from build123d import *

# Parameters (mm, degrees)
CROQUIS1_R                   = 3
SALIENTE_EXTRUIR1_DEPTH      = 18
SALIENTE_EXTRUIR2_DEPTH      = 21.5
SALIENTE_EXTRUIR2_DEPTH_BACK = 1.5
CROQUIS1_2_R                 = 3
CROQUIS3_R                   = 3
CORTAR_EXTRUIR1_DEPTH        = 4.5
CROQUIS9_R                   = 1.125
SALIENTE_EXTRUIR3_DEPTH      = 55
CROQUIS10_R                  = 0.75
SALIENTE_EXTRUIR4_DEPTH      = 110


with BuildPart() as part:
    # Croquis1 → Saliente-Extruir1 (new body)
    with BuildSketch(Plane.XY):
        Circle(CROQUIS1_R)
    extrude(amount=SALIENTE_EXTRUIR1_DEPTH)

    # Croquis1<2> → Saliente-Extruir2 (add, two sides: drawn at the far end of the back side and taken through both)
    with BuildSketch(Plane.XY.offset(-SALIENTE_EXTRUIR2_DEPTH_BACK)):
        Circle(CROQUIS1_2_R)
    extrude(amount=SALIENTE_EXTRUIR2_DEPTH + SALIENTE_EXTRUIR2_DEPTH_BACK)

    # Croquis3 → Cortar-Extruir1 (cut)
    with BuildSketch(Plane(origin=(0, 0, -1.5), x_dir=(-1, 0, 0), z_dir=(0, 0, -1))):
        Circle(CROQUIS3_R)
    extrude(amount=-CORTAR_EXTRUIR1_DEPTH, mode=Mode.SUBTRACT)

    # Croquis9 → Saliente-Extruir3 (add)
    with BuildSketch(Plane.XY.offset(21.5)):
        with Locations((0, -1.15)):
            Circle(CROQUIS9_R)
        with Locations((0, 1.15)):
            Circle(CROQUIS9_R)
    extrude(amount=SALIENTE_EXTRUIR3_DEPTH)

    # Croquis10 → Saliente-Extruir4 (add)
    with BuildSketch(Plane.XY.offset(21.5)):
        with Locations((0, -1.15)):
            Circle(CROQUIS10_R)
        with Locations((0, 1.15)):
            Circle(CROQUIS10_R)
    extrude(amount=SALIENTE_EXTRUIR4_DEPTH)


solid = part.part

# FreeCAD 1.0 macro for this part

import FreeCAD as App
import Part
import Sketcher

doc = App.newDocument("Part")
params = doc.addObject("Spreadsheet::Sheet", "Params")
for row, (alias, value) in enumerate([
    ("sketch1_diameter", "6 mm"),
    ("pad1_length", "18 mm"),
    ("sketch2_diameter", "6 mm"),
    ("pad2_length", "21.5 mm"),
    ("pad2_length2", "1.5 mm"),
    ("sketch3_diameter", "6 mm"),
    ("pocket1_length", "4.5 mm"),
    ("sketch4_diameter", "2.25 mm"),
    ("pad3_length", "55 mm"),
    ("sketch5_diameter", "1.5 mm"),
    ("pad4_length", "110 mm"),
], start=1):
    params.set(f"A{row}", alias)
    params.set(f"B{row}", "=" + value)
    params.setAlias(f"B{row}", alias)

body = doc.addObject("PartDesign::Body", "Body")

# Sketch on XY plane
sketch1 = body.newObject("Sketcher::SketchObject", "Sketch")
sketch1.AttachmentSupport = (doc.getObject("XY_Plane"), [""])
sketch1.MapMode = "FlatFace"
sketch1.addGeometry(Part.Circle(App.Vector(0, 0, 0), App.Vector(0, 0, 1), 3), False)
sketch1.addConstraint([
    Sketcher.Constraint("Coincident", 0, 3, -1, 1),
    Sketcher.Constraint("Diameter", 0, 6.0),
])
sketch1.setExpression("Constraints[1]", "Params.sketch1_diameter")
pad1 = body.newObject("PartDesign::Pad", "Pad")
pad1.Profile = sketch1
pad1.setExpression("Length", "Params.pad1_length")

# Sketch on XY plane
sketch2 = body.newObject("Sketcher::SketchObject", "Sketch001")
sketch2.AttachmentSupport = (doc.getObject("XY_Plane"), [""])
sketch2.MapMode = "FlatFace"
sketch2.addGeometry(Part.Circle(App.Vector(0, 0, 0), App.Vector(0, 0, 1), 3), False)
sketch2.addConstraint([
    Sketcher.Constraint("Coincident", 0, 3, -1, 1),
    Sketcher.Constraint("Diameter", 0, 6.0),
])
sketch2.setExpression("Constraints[1]", "Params.sketch2_diameter")
pad2 = body.newObject("PartDesign::Pad", "Pad001")
pad2.Profile = sketch2
pad2.Type = "TwoLengths"
pad2.setExpression("Length", "Params.pad2_length")
pad2.setExpression("Length2", "Params.pad2_length2")

# Sketch on XY plane
sketch3 = body.newObject("Sketcher::SketchObject", "Sketch002")
sketch3.AttachmentSupport = (doc.getObject("XY_Plane"), [""])
sketch3.MapMode = "FlatFace"
sketch3.AttachmentOffset = App.Placement(App.Vector(0, 0, -1.5), App.Rotation())
sketch3.addGeometry(Part.Circle(App.Vector(0, 0, 0), App.Vector(0, 0, 1), 3), False)
sketch3.addConstraint([
    Sketcher.Constraint("Coincident", 0, 3, -1, 1),
    Sketcher.Constraint("Diameter", 0, 6.0),
])
sketch3.setExpression("Constraints[1]", "Params.sketch3_diameter")
pocket1 = body.newObject("PartDesign::Pocket", "Pocket")
pocket1.Profile = sketch3
pocket1.setExpression("Length", "Params.pocket1_length")
pocket1.Reversed = True

# Sketch on XY plane
sketch4 = body.newObject("Sketcher::SketchObject", "Sketch003")
sketch4.AttachmentSupport = (doc.getObject("XY_Plane"), [""])
sketch4.MapMode = "FlatFace"
sketch4.AttachmentOffset = App.Placement(App.Vector(0, 0, 21.5), App.Rotation())
sketch4.addGeometry([
    Part.Circle(App.Vector(0, -1.15, 0), App.Vector(0, 0, 1), 1.125),
    Part.Circle(App.Vector(0, 1.15, 0), App.Vector(0, 0, 1), 1.125),
], False)
sketch4.addConstraint([
    Sketcher.Constraint("Equal", 0, 1),
    Sketcher.Constraint("Symmetric", 0, 3, 1, 3, -1, 1),
    Sketcher.Constraint("PointOnObject", 0, 3, -2),
    Sketcher.Constraint("Diameter", 0, 2.25),
    Sketcher.Constraint("DistanceY", 0, 3, 1, 3, 2.3),
])
sketch4.setExpression("Constraints[3]", "Params.sketch4_diameter")
pad3 = body.newObject("PartDesign::Pad", "Pad002")
pad3.Profile = sketch4
pad3.setExpression("Length", "Params.pad3_length")

# Sketch on XY plane
sketch5 = body.newObject("Sketcher::SketchObject", "Sketch004")
sketch5.AttachmentSupport = (doc.getObject("XY_Plane"), [""])
sketch5.MapMode = "FlatFace"
sketch5.AttachmentOffset = App.Placement(App.Vector(0, 0, 21.5), App.Rotation())
sketch5.addGeometry([
    Part.Circle(App.Vector(0, -1.15, 0), App.Vector(0, 0, 1), 0.75),
    Part.Circle(App.Vector(0, 1.15, 0), App.Vector(0, 0, 1), 0.75),
], False)
sketch5.addConstraint([
    Sketcher.Constraint("Equal", 0, 1),
    Sketcher.Constraint("Symmetric", 0, 3, 1, 3, -1, 1),
    Sketcher.Constraint("PointOnObject", 0, 3, -2),
    Sketcher.Constraint("Diameter", 0, 1.5),
    Sketcher.Constraint("DistanceY", 0, 3, 1, 3, 2.3),
])
sketch5.setExpression("Constraints[3]", "Params.sketch5_diameter")
pad4 = body.newObject("PartDesign::Pad", "Pad003")
pad4.Profile = sketch5
pad4.setExpression("Length", "Params.pad4_length")

doc.recompute()
